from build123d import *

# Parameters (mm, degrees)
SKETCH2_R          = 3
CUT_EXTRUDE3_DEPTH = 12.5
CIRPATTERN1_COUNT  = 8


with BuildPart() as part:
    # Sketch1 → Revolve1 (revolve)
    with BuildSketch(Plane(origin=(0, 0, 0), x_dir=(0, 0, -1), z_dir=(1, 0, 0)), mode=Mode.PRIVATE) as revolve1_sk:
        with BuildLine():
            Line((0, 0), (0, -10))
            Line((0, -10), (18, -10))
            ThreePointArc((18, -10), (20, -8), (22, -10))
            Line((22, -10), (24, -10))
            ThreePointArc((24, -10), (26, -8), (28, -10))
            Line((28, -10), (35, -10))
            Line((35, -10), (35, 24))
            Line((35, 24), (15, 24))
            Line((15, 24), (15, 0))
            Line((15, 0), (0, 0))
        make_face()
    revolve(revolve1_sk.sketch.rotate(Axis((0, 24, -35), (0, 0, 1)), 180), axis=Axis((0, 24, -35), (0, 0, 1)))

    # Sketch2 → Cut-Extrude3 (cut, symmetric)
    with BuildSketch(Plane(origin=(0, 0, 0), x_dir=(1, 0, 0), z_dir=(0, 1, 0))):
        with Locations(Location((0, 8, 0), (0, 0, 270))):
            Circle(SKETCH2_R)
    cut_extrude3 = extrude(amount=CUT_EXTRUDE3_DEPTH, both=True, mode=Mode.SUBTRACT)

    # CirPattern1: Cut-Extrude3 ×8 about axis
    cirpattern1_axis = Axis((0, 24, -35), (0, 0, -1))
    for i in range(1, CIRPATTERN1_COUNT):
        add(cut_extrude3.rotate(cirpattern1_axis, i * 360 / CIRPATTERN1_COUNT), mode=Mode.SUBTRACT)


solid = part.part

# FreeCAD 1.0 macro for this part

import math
import FreeCAD as App
import Part
import Sketcher
from FreeCAD import Vector

doc = App.newDocument("Part")
body = doc.addObject("PartDesign::Body", "Body")

# Sketch on YZ plane
sketch1 = doc.addObject("Sketcher::SketchObject", "Sketch")
body.addObject(sketch1)
sketch1.AttachmentSupport = (doc.YZ_Plane, [""])
sketch1.MapMode = "FlatFace"
sketch1.addGeometry(Part.LineSegment(Vector(0, 0, 0), Vector(-10, 0, 0)), False)
sketch1.addGeometry(Part.LineSegment(Vector(-10, 0, 0), Vector(-10, -18, 0)), False)
sketch1.addGeometry(Part.ArcOfCircle(Part.Circle(Vector(-10, -20, 0), Vector(0, 0, 1), 2), math.radians(-90), math.radians(90)), False)
sketch1.addGeometry(Part.LineSegment(Vector(-10, -22, 0), Vector(-10, -24, 0)), False)
sketch1.addGeometry(Part.ArcOfCircle(Part.Circle(Vector(-10, -26, 0), Vector(0, 0, 1), 2), math.radians(-90), math.radians(90)), False)
sketch1.addGeometry(Part.LineSegment(Vector(-10, -28, 0), Vector(-10, -35, 0)), False)
sketch1.addGeometry(Part.LineSegment(Vector(-10, -35, 0), Vector(24, -35, 0)), False)
sketch1.addGeometry(Part.LineSegment(Vector(24, -35, 0), Vector(24, -15, 0)), False)
sketch1.addGeometry(Part.LineSegment(Vector(24, -15, 0), Vector(0, -15, 0)), False)
sketch1.addGeometry(Part.LineSegment(Vector(0, -15, 0), Vector(0, 0, 0)), False)
sketch1.addGeometry(Part.LineSegment(Vector(24, -35, 0), Vector(24, 0, 0)), True)  # axis
sketch1.addConstraint(Sketcher.Constraint("Coincident", 0, 2, 1, 1))
sketch1.addConstraint(Sketcher.Constraint("Coincident", 1, 2, 2, 2))
sketch1.addConstraint(Sketcher.Constraint("Coincident", 2, 1, 3, 1))
sketch1.addConstraint(Sketcher.Constraint("Coincident", 3, 2, 4, 2))
sketch1.addConstraint(Sketcher.Constraint("Coincident", 4, 1, 5, 1))
sketch1.addConstraint(Sketcher.Constraint("Coincident", 5, 2, 6, 1))
sketch1.addConstraint(Sketcher.Constraint("Coincident", 6, 2, 7, 1))
sketch1.addConstraint(Sketcher.Constraint("Coincident", 7, 2, 8, 1))
sketch1.addConstraint(Sketcher.Constraint("Coincident", 8, 2, 9, 1))
sketch1.addConstraint(Sketcher.Constraint("Coincident", 9, 2, 0, 1))
sketch1.addConstraint(Sketcher.Constraint("Horizontal", 0))
sketch1.addConstraint(Sketcher.Constraint("Vertical", 1))
sketch1.addConstraint(Sketcher.Constraint("Vertical", 3))
sketch1.addConstraint(Sketcher.Constraint("Vertical", 5))
sketch1.addConstraint(Sketcher.Constraint("Horizontal", 6))
sketch1.addConstraint(Sketcher.Constraint("Vertical", 7))
sketch1.addConstraint(Sketcher.Constraint("Horizontal", 8))
sketch1.addConstraint(Sketcher.Constraint("Vertical", 9))
sketch1.addConstraint(Sketcher.Constraint("Vertical", 10))
sketch1.addConstraint(Sketcher.Constraint("Coincident", 9, 2, -1, 1))
sketch1.addConstraint(Sketcher.Constraint("Coincident", 10, 1, 6, 2))
sketch1.addConstraint(Sketcher.Constraint("Equal", 2, 4))
sketch1.addConstraint(Sketcher.Constraint("PointOnObject", 10, 2, -1))
sketch1.addConstraint(Sketcher.Constraint("Vertical", 2, 3, 4, 3))
sketch1.addConstraint(Sketcher.Constraint("Vertical", 4, 3, 0, 2))
sketch1.addConstraint(Sketcher.Constraint("Vertical", 1, 2, 2, 1))
sketch1.addConstraint(Sketcher.Constraint("Vertical", 3, 2, 4, 1))
sketch1.addConstraint(Sketcher.Constraint("Radius", 2, 2.0))
sketch1.addConstraint(Sketcher.Constraint("DistanceX", 0, 2, 0, 1, 10.0))
sketch1.addConstraint(Sketcher.Constraint("DistanceX", 6, 1, 6, 2, 34.0))
sketch1.addConstraint(Sketcher.Constraint("DistanceY", 1, 2, 1, 1, 18.0))
sketch1.addConstraint(Sketcher.Constraint("DistanceY", 3, 2, 3, 1, 2.0))
sketch1.addConstraint(Sketcher.Constraint("DistanceY", 5, 2, 5, 1, 7.0))
sketch1.addConstraint(Sketcher.Constraint("DistanceY", 7, 1, 7, 2, 20.0))
revolution = doc.addObject("PartDesign::Revolution", "Revolution")
body.addObject(revolution)
revolution.Profile = sketch1
revolution.ReferenceAxis = (sketch1, ["Axis0"])
revolution.Angle = 360

# Sketch on XZ plane
sketch2 = doc.addObject("Sketcher::SketchObject", "Sketch001")
body.addObject(sketch2)
sketch2.AttachmentSupport = (doc.XZ_Plane, [""])
sketch2.MapMode = "FlatFace"
sketch2.addGeometry(Part.Circle(Vector(0, -8, 0), Vector(0, 0, 1), 3), False)
sketch2.addConstraint(Sketcher.Constraint("PointOnObject", 0, 3, -2))
sketch2.addConstraint(Sketcher.Constraint("Diameter", 0, 6.0))
sketch2.addConstraint(Sketcher.Constraint("DistanceY", 0, 3, -1, 1, 8.0))
pocket1 = doc.addObject("PartDesign::Pocket", "Pocket")
body.addObject(pocket1)
pocket1.Profile = sketch2
pocket1.Length = 25
pocket1.Midplane = True
doc.recompute()

datumline = doc.addObject("PartDesign::Line", "DatumLine")
body.addObject(datumline)
datumline.Placement = App.Placement(Vector(0, 24, 0), App.Rotation(Vector(0, 0, 1), Vector(0, 0, -1)))
polarpattern = doc.addObject("PartDesign::PolarPattern", "PolarPattern")
body.addObject(polarpattern)
polarpattern.Originals = [pocket1]
polarpattern.Axis = (datumline, [""])
polarpattern.Angle = 360
polarpattern.Occurrences = 8
body.Tip = polarpattern

doc.recompute()
